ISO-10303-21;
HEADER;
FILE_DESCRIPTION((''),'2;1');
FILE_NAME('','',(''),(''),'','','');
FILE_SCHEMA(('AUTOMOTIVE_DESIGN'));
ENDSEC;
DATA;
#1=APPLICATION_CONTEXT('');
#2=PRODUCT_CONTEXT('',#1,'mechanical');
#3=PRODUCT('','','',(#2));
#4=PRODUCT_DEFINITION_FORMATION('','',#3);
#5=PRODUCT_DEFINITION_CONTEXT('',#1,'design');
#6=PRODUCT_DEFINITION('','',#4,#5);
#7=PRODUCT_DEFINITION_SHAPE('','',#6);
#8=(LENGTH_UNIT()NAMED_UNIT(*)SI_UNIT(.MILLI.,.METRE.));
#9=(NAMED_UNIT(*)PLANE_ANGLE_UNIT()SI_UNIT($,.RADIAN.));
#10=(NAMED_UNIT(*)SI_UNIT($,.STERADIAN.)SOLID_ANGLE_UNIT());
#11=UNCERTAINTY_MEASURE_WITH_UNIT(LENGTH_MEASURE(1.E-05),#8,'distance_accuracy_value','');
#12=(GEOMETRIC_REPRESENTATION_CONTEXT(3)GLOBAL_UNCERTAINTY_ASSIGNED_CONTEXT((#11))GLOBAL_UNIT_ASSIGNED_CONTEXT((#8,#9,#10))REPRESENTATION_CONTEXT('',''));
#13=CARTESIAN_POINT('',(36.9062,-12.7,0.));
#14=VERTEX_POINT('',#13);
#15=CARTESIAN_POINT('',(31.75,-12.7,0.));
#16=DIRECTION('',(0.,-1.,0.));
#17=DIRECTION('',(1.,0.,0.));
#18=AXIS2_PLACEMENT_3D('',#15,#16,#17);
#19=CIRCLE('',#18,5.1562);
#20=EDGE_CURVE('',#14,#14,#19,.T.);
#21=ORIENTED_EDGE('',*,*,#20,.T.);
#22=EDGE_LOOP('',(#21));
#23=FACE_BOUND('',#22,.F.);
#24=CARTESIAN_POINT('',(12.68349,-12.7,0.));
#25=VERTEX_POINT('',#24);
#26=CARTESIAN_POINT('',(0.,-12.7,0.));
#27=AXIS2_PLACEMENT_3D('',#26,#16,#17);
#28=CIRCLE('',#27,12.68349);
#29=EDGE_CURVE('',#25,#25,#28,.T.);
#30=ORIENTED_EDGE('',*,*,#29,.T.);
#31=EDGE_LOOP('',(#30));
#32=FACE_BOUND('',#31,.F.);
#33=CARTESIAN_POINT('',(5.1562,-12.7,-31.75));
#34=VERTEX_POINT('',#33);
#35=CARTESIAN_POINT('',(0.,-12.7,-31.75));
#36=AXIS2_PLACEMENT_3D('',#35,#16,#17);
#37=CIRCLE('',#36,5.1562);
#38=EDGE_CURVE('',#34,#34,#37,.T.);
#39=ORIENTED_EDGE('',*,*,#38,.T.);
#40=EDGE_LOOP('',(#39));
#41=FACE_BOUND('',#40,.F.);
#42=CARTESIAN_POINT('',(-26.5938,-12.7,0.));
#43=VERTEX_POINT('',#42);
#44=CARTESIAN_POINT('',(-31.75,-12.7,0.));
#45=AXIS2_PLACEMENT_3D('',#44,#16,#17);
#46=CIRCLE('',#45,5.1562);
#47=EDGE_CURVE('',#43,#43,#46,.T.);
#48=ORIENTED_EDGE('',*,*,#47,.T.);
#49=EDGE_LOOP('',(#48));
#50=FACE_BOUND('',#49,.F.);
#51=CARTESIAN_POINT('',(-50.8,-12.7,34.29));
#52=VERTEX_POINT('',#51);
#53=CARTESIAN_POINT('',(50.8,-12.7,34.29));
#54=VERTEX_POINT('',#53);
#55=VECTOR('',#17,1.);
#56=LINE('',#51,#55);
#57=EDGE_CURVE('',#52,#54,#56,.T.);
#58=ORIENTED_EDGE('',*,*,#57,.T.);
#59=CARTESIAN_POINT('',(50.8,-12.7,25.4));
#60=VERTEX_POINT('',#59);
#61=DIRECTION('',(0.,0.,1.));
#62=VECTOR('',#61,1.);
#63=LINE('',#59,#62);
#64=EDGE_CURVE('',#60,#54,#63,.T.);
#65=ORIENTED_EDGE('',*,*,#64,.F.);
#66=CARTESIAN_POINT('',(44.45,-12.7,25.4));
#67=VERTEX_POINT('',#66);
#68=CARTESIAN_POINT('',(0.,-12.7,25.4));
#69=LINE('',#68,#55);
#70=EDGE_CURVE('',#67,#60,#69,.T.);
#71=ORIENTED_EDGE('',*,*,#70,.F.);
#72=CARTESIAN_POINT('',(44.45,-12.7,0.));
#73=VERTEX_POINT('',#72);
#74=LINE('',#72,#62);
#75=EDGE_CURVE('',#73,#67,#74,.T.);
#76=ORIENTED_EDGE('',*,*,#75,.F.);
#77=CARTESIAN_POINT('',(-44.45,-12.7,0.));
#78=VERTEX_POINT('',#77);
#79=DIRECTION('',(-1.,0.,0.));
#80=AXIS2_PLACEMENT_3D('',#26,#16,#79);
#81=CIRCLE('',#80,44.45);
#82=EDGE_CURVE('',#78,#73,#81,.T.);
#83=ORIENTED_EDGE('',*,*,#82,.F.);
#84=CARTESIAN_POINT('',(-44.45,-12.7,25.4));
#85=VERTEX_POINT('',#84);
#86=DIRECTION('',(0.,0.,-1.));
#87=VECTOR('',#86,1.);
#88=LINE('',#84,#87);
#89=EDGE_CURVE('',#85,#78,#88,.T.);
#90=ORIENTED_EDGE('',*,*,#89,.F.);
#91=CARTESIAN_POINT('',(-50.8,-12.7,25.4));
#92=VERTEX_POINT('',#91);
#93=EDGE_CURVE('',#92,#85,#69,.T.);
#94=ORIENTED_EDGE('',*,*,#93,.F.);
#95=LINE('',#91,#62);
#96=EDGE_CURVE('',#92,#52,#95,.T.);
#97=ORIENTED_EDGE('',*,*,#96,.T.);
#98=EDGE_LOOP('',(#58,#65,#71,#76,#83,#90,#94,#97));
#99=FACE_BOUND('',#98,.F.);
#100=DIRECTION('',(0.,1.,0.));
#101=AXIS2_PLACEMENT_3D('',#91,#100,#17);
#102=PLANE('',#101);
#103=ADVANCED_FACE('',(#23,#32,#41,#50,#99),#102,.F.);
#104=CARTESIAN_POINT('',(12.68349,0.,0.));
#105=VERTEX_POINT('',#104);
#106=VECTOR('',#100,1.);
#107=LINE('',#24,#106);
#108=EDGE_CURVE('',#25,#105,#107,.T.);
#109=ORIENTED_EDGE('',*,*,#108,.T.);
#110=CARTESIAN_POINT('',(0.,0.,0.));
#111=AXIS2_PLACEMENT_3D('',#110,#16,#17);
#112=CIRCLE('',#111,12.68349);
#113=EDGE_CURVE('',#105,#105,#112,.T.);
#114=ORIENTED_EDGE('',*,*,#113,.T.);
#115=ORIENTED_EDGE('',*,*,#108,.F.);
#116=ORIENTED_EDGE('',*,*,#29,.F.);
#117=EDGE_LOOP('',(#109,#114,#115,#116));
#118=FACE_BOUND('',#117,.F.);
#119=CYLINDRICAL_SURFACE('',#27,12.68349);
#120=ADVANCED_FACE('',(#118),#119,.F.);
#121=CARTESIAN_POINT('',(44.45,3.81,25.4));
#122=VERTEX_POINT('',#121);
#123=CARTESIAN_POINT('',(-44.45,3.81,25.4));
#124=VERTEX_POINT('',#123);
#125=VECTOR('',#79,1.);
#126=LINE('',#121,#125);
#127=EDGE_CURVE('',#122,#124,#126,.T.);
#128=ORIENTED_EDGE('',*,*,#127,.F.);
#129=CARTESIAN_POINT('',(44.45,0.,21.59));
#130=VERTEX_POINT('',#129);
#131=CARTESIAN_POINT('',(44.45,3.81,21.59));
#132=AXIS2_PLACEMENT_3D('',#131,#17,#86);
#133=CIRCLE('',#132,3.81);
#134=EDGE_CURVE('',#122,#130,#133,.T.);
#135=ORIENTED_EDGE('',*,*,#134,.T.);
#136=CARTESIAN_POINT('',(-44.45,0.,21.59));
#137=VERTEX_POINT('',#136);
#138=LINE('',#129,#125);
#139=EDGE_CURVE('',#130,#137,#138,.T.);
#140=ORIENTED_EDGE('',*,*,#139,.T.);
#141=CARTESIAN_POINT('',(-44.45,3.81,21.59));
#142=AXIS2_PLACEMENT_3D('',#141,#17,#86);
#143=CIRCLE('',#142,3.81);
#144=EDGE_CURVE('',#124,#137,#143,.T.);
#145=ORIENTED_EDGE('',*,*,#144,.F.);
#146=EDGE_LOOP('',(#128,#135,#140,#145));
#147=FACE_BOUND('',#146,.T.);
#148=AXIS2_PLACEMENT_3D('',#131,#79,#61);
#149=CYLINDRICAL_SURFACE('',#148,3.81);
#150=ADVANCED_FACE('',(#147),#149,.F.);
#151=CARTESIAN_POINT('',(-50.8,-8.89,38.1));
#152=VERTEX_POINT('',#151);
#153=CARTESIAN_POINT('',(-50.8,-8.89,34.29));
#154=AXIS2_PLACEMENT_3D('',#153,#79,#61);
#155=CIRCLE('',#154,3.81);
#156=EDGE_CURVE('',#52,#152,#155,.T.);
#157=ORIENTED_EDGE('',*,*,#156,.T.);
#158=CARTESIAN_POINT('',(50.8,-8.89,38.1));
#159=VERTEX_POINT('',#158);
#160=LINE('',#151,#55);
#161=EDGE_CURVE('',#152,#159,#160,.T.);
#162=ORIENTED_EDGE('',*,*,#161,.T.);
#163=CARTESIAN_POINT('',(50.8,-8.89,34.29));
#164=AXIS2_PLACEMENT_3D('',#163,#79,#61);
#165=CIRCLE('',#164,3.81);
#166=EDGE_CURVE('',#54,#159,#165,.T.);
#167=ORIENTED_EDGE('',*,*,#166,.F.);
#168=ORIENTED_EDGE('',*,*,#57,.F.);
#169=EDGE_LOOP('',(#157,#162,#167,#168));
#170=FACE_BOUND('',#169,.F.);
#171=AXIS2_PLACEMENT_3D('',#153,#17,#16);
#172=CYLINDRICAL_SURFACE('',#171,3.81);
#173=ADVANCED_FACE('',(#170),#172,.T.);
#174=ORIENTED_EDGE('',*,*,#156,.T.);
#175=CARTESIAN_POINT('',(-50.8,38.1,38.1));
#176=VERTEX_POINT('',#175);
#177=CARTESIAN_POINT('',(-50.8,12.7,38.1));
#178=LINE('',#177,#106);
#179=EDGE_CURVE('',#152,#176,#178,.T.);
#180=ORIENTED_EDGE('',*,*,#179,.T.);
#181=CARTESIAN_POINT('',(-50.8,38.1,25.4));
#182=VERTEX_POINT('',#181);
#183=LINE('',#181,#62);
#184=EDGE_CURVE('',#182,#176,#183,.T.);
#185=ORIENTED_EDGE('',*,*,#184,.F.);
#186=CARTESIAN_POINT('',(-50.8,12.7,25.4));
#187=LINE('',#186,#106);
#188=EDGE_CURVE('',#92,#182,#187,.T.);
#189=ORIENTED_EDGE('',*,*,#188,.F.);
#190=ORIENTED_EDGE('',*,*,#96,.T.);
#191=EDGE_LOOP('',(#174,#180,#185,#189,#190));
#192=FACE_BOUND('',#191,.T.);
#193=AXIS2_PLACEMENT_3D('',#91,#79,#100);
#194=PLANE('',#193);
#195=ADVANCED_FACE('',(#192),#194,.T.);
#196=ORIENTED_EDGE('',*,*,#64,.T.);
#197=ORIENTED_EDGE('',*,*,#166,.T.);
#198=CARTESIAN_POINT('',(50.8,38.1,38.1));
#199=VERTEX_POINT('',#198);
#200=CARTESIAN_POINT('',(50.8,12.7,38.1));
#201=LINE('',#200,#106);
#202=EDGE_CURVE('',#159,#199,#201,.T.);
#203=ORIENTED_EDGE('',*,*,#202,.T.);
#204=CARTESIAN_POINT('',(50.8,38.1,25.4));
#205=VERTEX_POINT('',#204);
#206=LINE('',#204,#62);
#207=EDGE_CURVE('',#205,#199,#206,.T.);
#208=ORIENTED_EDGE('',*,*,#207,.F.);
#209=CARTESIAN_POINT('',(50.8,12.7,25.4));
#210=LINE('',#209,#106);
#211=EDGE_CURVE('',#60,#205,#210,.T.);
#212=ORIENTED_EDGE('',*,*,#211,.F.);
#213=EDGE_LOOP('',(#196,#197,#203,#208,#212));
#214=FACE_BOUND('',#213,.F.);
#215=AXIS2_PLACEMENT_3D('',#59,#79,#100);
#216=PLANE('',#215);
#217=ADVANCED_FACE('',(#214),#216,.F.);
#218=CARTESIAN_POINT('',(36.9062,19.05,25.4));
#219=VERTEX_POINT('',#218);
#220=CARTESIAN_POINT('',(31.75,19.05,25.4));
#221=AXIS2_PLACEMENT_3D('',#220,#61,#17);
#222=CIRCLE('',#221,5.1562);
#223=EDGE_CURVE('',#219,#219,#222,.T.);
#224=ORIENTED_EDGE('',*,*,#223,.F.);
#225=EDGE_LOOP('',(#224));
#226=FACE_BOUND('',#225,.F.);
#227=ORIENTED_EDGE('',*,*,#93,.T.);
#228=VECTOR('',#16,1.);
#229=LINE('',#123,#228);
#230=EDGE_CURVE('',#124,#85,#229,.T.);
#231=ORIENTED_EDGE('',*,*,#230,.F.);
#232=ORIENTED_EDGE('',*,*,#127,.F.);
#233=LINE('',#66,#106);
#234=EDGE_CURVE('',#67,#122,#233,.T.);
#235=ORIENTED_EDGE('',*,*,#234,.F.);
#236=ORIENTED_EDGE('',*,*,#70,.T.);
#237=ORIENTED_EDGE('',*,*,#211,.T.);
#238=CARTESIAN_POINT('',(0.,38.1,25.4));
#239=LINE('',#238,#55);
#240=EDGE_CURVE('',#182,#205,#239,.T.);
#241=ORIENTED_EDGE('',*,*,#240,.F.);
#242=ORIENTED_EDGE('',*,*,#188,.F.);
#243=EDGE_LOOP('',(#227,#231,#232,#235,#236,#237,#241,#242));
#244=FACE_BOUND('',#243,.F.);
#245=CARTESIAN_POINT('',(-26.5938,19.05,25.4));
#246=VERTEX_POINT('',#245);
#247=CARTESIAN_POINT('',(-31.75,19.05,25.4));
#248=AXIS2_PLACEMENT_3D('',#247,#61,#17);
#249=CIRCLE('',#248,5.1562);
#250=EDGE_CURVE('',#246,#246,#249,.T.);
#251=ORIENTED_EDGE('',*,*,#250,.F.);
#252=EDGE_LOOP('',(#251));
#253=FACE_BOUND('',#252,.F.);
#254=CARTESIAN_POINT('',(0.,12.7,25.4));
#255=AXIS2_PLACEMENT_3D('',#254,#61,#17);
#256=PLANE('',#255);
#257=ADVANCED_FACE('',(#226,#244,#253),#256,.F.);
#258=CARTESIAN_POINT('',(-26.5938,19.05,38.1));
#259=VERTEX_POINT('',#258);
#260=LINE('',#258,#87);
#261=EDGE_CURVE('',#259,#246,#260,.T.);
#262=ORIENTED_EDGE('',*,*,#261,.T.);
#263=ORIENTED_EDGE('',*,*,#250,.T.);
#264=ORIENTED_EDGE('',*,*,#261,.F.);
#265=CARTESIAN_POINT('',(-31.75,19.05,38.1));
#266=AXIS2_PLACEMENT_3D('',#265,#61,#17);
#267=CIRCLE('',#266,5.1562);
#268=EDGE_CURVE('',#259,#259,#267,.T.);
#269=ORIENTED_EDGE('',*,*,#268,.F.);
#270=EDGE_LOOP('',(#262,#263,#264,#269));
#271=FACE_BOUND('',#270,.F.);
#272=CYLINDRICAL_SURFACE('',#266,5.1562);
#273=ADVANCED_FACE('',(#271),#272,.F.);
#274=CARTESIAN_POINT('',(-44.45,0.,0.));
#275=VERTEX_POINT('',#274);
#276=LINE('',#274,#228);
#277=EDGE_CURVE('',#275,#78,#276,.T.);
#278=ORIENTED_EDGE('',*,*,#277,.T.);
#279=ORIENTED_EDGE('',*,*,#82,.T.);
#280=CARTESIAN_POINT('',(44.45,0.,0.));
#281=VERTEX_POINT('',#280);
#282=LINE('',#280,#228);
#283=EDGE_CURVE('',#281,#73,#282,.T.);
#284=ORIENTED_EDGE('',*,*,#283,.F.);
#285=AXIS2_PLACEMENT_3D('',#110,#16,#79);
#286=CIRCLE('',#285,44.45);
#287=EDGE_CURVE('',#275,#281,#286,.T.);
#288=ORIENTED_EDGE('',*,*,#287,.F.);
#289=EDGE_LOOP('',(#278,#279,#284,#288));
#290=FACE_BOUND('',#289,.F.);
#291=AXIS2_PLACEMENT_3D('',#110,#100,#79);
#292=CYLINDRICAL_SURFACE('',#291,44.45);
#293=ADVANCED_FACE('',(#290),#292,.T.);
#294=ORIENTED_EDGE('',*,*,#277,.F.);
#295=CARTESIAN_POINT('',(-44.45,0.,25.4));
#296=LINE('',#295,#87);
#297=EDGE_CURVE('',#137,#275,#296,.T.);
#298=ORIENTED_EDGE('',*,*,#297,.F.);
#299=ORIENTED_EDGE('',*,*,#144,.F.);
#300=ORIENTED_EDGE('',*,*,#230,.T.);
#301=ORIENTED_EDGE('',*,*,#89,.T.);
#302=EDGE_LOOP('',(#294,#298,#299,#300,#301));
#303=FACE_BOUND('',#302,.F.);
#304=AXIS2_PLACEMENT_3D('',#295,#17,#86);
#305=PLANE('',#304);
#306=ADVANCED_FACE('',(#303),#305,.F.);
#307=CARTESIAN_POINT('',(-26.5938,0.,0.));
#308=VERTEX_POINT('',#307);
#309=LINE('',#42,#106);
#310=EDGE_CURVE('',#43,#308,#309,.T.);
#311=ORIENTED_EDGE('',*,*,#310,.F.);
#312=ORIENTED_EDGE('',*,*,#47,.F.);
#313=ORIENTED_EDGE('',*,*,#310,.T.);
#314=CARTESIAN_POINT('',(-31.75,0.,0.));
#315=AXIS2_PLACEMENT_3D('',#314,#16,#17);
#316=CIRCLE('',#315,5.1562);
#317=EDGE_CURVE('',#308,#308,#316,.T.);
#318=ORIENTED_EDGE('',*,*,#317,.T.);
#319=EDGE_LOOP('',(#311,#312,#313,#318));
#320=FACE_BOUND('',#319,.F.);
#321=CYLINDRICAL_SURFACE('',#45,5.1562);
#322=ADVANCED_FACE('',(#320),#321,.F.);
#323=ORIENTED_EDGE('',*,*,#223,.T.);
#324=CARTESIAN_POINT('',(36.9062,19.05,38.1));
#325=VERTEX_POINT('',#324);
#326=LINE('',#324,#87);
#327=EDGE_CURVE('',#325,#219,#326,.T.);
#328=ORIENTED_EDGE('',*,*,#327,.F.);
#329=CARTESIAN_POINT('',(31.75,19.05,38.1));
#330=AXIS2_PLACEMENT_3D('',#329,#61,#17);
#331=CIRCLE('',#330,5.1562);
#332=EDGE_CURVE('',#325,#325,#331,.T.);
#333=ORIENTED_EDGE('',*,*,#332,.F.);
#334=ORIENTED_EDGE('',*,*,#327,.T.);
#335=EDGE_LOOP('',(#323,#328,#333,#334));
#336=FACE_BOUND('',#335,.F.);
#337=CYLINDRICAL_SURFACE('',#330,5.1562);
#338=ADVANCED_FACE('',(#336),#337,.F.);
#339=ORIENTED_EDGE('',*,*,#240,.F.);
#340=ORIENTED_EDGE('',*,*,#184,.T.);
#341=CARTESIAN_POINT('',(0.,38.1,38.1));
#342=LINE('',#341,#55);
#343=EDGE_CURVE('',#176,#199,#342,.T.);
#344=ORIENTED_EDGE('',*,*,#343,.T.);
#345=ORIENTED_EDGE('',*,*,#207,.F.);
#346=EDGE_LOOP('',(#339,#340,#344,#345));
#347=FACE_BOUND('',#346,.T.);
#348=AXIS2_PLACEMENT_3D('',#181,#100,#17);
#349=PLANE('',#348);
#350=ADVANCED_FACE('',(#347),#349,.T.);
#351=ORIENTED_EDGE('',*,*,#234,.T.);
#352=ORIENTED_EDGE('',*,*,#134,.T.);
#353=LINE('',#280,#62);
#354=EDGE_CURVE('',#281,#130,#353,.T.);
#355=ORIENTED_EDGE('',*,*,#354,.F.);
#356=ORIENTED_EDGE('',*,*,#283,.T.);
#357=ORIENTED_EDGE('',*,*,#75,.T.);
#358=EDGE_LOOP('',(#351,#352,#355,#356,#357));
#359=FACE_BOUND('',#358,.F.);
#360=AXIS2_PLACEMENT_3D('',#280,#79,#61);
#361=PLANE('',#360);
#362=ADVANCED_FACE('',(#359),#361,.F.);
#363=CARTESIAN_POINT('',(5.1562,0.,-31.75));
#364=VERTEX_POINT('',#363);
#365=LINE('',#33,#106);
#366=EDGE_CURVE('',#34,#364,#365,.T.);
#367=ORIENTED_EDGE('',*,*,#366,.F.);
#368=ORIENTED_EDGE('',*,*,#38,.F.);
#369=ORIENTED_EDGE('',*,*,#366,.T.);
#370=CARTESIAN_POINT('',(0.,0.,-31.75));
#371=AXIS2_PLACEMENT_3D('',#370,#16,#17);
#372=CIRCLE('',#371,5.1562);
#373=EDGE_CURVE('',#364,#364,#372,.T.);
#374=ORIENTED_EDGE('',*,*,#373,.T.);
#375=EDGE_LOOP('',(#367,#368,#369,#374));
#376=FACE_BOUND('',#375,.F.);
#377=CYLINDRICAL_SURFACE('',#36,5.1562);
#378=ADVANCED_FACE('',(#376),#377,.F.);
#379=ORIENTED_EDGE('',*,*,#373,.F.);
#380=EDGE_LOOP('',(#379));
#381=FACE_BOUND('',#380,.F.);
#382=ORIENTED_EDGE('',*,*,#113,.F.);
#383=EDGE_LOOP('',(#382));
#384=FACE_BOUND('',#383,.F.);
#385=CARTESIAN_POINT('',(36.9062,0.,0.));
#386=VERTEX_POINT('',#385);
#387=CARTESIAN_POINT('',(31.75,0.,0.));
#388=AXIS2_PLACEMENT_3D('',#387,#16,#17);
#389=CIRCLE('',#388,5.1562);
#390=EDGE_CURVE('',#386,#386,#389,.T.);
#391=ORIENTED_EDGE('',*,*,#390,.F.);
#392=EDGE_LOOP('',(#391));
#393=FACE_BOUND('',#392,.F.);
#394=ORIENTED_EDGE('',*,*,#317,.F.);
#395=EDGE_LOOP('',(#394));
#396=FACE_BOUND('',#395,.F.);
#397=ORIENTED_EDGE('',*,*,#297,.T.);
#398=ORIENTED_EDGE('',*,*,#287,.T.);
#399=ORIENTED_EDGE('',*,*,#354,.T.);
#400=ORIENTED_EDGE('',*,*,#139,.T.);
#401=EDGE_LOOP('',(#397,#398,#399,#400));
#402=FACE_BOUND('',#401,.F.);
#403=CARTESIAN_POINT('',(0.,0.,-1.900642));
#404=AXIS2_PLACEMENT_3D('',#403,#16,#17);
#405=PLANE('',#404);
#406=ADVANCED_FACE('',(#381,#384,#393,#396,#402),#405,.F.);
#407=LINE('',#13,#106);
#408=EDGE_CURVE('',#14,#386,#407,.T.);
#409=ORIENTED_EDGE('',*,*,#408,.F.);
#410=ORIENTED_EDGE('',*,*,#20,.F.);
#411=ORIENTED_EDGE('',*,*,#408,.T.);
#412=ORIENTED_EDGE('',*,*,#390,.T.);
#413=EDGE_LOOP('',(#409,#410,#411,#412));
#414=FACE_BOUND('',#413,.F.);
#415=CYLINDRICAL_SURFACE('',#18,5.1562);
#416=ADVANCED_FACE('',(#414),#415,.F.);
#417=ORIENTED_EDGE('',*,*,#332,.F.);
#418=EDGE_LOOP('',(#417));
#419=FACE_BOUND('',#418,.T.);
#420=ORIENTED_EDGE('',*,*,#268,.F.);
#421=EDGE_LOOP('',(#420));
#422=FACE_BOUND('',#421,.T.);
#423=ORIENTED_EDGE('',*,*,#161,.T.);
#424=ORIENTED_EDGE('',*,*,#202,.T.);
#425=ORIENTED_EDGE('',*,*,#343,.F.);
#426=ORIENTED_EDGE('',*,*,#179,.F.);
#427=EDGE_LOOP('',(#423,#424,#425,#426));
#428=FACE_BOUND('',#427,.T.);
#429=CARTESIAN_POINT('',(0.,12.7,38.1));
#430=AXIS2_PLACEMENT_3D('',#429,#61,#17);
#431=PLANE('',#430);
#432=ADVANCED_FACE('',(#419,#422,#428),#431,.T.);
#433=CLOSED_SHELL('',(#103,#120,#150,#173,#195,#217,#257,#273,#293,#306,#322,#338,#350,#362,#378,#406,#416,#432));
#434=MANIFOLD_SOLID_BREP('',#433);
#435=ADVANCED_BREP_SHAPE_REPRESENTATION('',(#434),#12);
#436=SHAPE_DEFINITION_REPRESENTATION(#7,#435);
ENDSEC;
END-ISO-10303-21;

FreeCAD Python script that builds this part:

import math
import FreeCAD as App
import Part
import Sketcher
Q = App.Units.Quantity


def edges_at(feature, points):
    """Names of the edges that pass closest to the given points."""
    edges = feature.Shape.Edges
    near = lambda p: min(range(len(edges)), key=lambda i: edges[i].distToShape(Part.Vertex(*p))[0])
    return sorted({f"Edge{near(p) + 1}" for p in points})

doc = App.newDocument("Part")
body = doc.addObject("PartDesign::Body", "Body")

sketch1 = doc.addObject("Sketcher::SketchObject", "Sketch")
body.addObject(sketch1)
sketch1.AttachmentSupport = (doc.XZ_Plane, [""])
sketch1.MapMode = "FlatFace"
sketch1.addGeometry(Part.LineSegment(App.Vector(-44, 25, 0), App.Vector(-44, 0, 0)), False)
sketch1.addGeometry(Part.ArcOfCircle(Part.Circle(App.Vector(0, 0, 0), App.Vector(0, 0, 1), 44), math.radians(180), math.radians(360)), False)
sketch1.addGeometry(Part.LineSegment(App.Vector(44, 0, 0), App.Vector(44, 25, 0)), False)
sketch1.addGeometry(Part.LineSegment(App.Vector(44, 25, 0), App.Vector(-44, 25, 0)), False)
sketch1.addConstraint(Sketcher.Constraint("Tangent", 0, 2, 1, 1))
sketch1.addConstraint(Sketcher.Constraint("Tangent", 1, 2, 2, 1))
sketch1.addConstraint(Sketcher.Constraint("Coincident", 2, 2, 3, 1))
sketch1.addConstraint(Sketcher.Constraint("Coincident", 3, 2, 0, 1))
sketch1.addConstraint(Sketcher.Constraint("Vertical", 0))
sketch1.addConstraint(Sketcher.Constraint("Vertical", 2))
sketch1.addConstraint(Sketcher.Constraint("Horizontal", 3))
sketch1.addConstraint(Sketcher.Constraint("Coincident", 1, 3, -1, 1))
sketch1.addConstraint(Sketcher.Constraint("DistanceY", 0, 2, 0, 1, Q("1 in")))
sketch1.addConstraint(Sketcher.Constraint("Radius", 1, Q("1.75 in")))
pad1 = doc.addObject("PartDesign::Pad", "Pad")
body.addObject(pad1)
pad1.Profile = sketch1
pad1.Length = Q("0.5 in")

sketch2 = doc.addObject("Sketcher::SketchObject", "Sketch001")
body.addObject(sketch2)
sketch2.AttachmentSupport = (doc.XY_Plane, [""])
sketch2.MapMode = "FlatFace"
sketch2.AttachmentOffset = App.Placement(App.Vector(0, 0, 1 * 25.4), App.Rotation())
sketch2.addGeometry(Part.LineSegment(App.Vector(-51, 38, 0), App.Vector(-51, -13, 0)), False)
sketch2.addGeometry(Part.LineSegment(App.Vector(-51, -13, 0), App.Vector(51, -13, 0)), False)
sketch2.addGeometry(Part.LineSegment(App.Vector(51, -13, 0), App.Vector(51, 38, 0)), False)
sketch2.addGeometry(Part.LineSegment(App.Vector(51, 38, 0), App.Vector(-51, 38, 0)), False)
sketch2.addConstraint(Sketcher.Constraint("Coincident", 0, 2, 1, 1))
sketch2.addConstraint(Sketcher.Constraint("Coincident", 1, 2, 2, 1))
sketch2.addConstraint(Sketcher.Constraint("Coincident", 2, 2, 3, 1))
sketch2.addConstraint(Sketcher.Constraint("Coincident", 3, 2, 0, 1))
sketch2.addConstraint(Sketcher.Constraint("Vertical", 0))
sketch2.addConstraint(Sketcher.Constraint("Horizontal", 1))
sketch2.addConstraint(Sketcher.Constraint("Vertical", 2))
sketch2.addConstraint(Sketcher.Constraint("Horizontal", 3))
sketch2.addConstraint(Sketcher.Constraint("DistanceX", 1, 1, 1, 2, Q("4 in")))
sketch2.addConstraint(Sketcher.Constraint("DistanceY", 0, 2, 0, 1, Q("2 in")))
sketch2.addConstraint(Sketcher.Constraint("DistanceX", 0, 2, -1, 1, Q("2 in")))
sketch2.addConstraint(Sketcher.Constraint("DistanceY", 0, 2, -1, 1, Q("0.5 in")))
pad2 = doc.addObject("PartDesign::Pad", "Pad001")
body.addObject(pad2)
pad2.Profile = sketch2
pad2.Length = Q("0.5 in")

sketch3 = doc.addObject("Sketcher::SketchObject", "Sketch002")
body.addObject(sketch3)
sketch3.AttachmentSupport = (doc.XZ_Plane, [""])
sketch3.MapMode = "FlatFace"
sketch3.AttachmentOffset = App.Placement(App.Vector(0, 0, 0.5 * 25.4), App.Rotation())
sketch3.addGeometry(Part.Circle(App.Vector(0, 0, 0), App.Vector(0, 0, 1), 13), False)
sketch3.addConstraint(Sketcher.Constraint("Coincident", 0, 3, -1, 1))
sketch3.addConstraint(Sketcher.Constraint("Diameter", 0, Q("0.9987 in")))
pocket1 = doc.addObject("PartDesign::Pocket", "Pocket")
body.addObject(pocket1)
pocket1.Profile = sketch3
pocket1.Length = Q("1 in")

sketch4 = doc.addObject("Sketcher::SketchObject", "Sketch003")
body.addObject(sketch4)
sketch4.AttachmentSupport = (doc.XZ_Plane, [""])
sketch4.MapMode = "FlatFace"
sketch4.AttachmentOffset = App.Placement(App.Vector(0, 0, 0.5 * 25.4), App.Rotation())
sketch4.addGeometry(Part.Circle(App.Vector(0, -32, 0), App.Vector(0, 0, 1), 5), False)
sketch4.addGeometry(Part.Circle(App.Vector(-32, 0, 0), App.Vector(0, 0, 1), 5), False)
sketch4.addGeometry(Part.Circle(App.Vector(32, 0, 0), App.Vector(0, 0, 1), 5), False)
sketch4.addConstraint(Sketcher.Constraint("Equal", 0, 1))
sketch4.addConstraint(Sketcher.Constraint("Equal", 1, 2))
sketch4.addConstraint(Sketcher.Constraint("Symmetric", 1, 3, 2, 3, -1, 1))
sketch4.addConstraint(Sketcher.Constraint("PointOnObject", 0, 3, -2))
sketch4.addConstraint(Sketcher.Constraint("PointOnObject", 1, 3, -1))
sketch4.addConstraint(Sketcher.Constraint("Diameter", 0, Q("0.406 in")))
sketch4.addConstraint(Sketcher.Constraint("DistanceX", 1, 3, 2, 3, Q("2.5 in")))
sketch4.addConstraint(Sketcher.Constraint("DistanceY", 0, 3, -1, 1, Q("1.25 in")))
pocket2 = doc.addObject("PartDesign::Pocket", "Pocket001")
body.addObject(pocket2)
pocket2.Profile = sketch4
pocket2.Length = Q("1 in")

sketch5 = doc.addObject("Sketcher::SketchObject", "Sketch004")
body.addObject(sketch5)
sketch5.AttachmentSupport = (doc.XY_Plane, [""])
sketch5.MapMode = "FlatFace"
sketch5.AttachmentOffset = App.Placement(App.Vector(0, 0, 1.5 * 25.4), App.Rotation())
sketch5.addGeometry(Part.Circle(App.Vector(-32, 19, 0), App.Vector(0, 0, 1), 5), False)
sketch5.addGeometry(Part.Circle(App.Vector(32, 19, 0), App.Vector(0, 0, 1), 5), False)
sketch5.addConstraint(Sketcher.Constraint("Equal", 0, 1))
sketch5.addConstraint(Sketcher.Constraint("Symmetric", 0, 3, 1, 3, -2))
sketch5.addConstraint(Sketcher.Constraint("Diameter", 0, Q("0.406 in")))
sketch5.addConstraint(Sketcher.Constraint("DistanceX", 0, 3, 1, 3, Q("2.5 in")))
sketch5.addConstraint(Sketcher.Constraint("DistanceY", -1, 1, 0, 3, Q("0.75 in")))
pocket3 = doc.addObject("PartDesign::Pocket", "Pocket002")
body.addObject(pocket3)
pocket3.Profile = sketch5
pocket3.Length = Q("1 in")
doc.recompute()

fillet = doc.addObject("PartDesign::Fillet", "Fillet")
body.addObject(fillet)
fillet.Base = (pocket3, edges_at(pocket3, [(0, 0, 25.4), (0, -12.7, 38.1)]))
fillet.Radius = Q("0.15 in")

doc.recompute()
